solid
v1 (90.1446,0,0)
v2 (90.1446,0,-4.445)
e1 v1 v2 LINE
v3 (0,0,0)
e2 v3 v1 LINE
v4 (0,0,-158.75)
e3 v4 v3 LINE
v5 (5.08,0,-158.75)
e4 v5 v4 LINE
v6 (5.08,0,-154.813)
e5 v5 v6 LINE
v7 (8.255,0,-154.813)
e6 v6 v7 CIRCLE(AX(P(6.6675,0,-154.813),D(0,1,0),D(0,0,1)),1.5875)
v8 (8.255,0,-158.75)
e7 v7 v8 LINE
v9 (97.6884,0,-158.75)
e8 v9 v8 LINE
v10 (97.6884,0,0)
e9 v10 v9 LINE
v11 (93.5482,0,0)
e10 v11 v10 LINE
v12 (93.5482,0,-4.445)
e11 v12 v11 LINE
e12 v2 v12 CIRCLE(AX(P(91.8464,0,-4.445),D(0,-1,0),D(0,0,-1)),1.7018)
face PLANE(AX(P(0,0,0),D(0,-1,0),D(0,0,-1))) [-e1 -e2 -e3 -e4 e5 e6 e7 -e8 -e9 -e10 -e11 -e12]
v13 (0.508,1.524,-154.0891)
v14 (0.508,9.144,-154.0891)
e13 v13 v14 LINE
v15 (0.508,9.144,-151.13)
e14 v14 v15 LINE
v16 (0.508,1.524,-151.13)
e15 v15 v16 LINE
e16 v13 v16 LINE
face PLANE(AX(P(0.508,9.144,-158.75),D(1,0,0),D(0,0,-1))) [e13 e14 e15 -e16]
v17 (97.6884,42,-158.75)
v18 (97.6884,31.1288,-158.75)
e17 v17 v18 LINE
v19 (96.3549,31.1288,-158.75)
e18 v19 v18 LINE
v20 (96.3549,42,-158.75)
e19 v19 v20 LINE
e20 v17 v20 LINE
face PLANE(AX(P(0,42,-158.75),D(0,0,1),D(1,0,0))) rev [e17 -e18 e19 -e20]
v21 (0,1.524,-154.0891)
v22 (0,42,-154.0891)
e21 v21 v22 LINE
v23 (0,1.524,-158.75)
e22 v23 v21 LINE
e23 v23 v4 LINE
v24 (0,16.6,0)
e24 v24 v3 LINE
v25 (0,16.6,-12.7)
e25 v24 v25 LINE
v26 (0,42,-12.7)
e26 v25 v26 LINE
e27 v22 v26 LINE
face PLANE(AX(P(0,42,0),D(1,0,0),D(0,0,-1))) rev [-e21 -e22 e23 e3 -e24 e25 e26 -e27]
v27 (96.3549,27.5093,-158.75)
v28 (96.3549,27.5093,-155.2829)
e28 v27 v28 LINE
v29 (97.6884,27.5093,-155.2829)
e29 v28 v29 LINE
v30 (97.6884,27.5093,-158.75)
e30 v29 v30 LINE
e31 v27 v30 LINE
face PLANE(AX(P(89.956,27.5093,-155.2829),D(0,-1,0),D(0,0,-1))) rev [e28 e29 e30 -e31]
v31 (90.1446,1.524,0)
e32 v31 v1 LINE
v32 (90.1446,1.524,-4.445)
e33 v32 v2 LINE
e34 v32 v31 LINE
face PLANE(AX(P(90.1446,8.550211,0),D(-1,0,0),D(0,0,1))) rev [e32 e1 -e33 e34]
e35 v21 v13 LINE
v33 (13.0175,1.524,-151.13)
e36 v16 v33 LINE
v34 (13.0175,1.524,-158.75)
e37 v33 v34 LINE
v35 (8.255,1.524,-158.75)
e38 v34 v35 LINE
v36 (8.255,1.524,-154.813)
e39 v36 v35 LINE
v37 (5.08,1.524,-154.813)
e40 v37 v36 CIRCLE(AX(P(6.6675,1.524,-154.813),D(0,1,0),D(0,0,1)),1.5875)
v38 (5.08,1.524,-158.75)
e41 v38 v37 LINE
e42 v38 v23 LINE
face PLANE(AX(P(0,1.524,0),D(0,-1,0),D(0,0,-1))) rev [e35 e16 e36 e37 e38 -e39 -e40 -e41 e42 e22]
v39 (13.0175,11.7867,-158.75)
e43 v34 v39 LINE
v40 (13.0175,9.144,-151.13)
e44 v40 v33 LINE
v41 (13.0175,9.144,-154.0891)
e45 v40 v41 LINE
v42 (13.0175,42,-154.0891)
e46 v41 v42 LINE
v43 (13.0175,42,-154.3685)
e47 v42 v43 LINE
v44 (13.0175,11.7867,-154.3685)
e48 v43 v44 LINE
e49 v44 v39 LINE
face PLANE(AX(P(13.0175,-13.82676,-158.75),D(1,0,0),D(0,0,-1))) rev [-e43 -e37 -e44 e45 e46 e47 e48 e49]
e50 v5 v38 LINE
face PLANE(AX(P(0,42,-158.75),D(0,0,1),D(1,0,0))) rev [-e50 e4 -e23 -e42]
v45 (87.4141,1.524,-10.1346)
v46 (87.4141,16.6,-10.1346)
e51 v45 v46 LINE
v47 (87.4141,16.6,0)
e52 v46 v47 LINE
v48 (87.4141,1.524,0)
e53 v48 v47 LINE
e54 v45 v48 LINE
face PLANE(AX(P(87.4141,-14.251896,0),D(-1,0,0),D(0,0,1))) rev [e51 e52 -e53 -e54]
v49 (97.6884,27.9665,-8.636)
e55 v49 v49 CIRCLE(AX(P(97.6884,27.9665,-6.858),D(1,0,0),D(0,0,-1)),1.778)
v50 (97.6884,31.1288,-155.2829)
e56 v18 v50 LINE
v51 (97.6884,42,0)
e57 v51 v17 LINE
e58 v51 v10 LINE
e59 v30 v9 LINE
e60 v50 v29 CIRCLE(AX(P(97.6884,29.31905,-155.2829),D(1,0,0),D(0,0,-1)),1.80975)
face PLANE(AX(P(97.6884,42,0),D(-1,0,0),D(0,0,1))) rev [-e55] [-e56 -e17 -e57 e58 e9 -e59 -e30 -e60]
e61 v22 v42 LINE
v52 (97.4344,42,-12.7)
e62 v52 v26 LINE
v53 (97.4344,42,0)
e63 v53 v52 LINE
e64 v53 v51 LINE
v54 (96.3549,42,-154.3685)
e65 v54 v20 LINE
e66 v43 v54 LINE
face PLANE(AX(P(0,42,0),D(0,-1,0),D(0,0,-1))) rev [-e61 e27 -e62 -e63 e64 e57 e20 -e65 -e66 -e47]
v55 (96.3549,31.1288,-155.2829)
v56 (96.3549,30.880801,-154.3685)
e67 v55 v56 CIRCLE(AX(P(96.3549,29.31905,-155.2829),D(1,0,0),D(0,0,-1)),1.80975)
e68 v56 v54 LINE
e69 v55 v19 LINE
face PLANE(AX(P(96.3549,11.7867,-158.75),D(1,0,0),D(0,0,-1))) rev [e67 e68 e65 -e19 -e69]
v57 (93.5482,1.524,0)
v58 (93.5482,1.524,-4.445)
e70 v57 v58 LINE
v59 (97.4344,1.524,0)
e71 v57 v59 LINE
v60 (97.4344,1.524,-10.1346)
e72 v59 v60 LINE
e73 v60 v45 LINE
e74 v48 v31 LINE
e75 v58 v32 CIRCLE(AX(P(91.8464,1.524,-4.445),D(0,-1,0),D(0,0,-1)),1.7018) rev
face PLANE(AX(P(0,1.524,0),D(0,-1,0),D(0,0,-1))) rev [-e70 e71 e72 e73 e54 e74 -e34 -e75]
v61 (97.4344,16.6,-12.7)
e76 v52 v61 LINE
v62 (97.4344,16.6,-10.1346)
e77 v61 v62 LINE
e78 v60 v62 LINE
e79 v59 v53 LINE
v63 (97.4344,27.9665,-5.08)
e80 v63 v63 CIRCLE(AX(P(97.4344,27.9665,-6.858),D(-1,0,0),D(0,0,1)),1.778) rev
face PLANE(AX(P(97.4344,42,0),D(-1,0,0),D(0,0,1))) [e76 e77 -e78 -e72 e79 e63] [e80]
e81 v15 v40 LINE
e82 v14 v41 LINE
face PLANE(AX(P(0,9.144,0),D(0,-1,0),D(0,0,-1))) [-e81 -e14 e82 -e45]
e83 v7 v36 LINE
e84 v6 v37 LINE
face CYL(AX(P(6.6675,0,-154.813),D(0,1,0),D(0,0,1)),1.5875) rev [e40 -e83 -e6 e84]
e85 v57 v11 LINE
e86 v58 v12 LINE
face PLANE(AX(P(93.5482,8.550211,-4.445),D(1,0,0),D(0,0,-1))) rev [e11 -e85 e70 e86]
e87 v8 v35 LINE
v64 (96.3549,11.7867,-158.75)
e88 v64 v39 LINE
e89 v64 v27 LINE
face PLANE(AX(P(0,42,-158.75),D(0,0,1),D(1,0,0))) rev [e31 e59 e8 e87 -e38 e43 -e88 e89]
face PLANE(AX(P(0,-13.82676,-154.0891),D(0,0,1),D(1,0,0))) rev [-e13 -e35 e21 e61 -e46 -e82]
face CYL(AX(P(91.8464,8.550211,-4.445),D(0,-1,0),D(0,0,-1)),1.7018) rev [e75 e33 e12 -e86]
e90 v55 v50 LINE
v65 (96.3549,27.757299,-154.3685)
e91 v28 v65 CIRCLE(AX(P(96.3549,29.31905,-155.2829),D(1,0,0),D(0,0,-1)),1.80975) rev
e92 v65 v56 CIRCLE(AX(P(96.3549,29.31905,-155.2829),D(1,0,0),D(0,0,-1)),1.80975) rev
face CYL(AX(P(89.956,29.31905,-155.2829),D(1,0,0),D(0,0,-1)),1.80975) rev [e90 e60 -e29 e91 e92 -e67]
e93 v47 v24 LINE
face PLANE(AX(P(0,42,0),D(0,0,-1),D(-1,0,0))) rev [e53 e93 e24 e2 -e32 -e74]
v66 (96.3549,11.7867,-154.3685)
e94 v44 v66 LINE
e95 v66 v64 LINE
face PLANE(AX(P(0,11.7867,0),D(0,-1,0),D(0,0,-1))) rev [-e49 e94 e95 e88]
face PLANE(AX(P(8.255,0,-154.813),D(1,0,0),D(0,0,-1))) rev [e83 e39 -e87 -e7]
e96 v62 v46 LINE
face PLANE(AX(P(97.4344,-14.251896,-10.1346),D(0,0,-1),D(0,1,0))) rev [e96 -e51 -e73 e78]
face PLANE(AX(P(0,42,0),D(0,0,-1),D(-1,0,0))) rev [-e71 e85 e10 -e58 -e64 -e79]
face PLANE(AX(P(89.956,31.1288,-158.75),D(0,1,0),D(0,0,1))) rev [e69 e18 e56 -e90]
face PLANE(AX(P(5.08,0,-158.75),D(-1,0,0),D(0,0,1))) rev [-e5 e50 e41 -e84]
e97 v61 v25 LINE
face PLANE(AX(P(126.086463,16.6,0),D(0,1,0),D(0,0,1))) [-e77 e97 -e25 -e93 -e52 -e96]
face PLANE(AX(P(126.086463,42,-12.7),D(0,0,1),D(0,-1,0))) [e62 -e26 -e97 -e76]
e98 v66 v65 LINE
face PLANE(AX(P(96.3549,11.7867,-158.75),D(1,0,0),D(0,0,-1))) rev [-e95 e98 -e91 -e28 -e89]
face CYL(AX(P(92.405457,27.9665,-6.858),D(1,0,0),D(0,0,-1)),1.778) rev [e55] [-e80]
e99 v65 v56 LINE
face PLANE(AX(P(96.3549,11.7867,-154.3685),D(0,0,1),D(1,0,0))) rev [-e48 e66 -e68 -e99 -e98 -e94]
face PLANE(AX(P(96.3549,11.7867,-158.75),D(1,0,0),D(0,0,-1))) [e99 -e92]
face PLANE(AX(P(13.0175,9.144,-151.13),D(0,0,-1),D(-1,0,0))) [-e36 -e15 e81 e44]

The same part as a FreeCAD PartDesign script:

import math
import FreeCAD as App
import Part
import Sketcher

V = App.Vector
Q = App.Units.Quantity

doc = App.newDocument("Part")
params = doc.addObject("Spreadsheet::Sheet", "Params")
for row, (alias, value) in enumerate([
    ("sketch1_height", "6.25 in"),
    ("sketch1_width", "3.846 in"),
    ("pad1_length", "42 mm"),
    ("sketch2_width", "1 in"),
    ("sketch2_height", "0.5 in"),
    ("pocket1_length", "3.836 in"),
    ("sketch3_height", "0.399 in"),
    ("pocket2_length", "15.076 mm"),
    ("pocket3_length", "40.476 mm"),
    ("sketch5_height", "0.3 in"),
    ("pocket4_length", "0.3 in"),
    ("pocket5_length", "1.1895 in"),
    ("sketch7_radius", "0.0625 in"),
    ("sketch7_height", "0.155 in"),
    ("pocket7_length", "0.0525 in"),
    ("sketch9_diameter", "0.14 in"),
    ("pocket8_length", "0.01 in"),
    ("sketch10_radius", "0.067 in"),
    ("sketch10_height", "0.175 in"),
    ("pocket9_length", "0.06 in"),
], start=1):
    params.set(f"A{row}", alias)
    params.set(f"B{row}", "=" + value)
    params.setAlias(f"B{row}", alias)

body = doc.addObject("PartDesign::Body", "Body")

sketch1 = body.newObject("Sketcher::SketchObject", "Sketch")
sketch1.AttachmentSupport = (doc.getObject("XZ_Plane"), [""])
sketch1.MapMode = "FlatFace"
sketch1.addGeometry([
    Part.LineSegment(V(0, -159, 0), V(0, 0, 0)),
    Part.LineSegment(V(0, 0, 0), V(98, 0, 0)),
    Part.LineSegment(V(98, 0, 0), V(98, -159, 0)),
    Part.LineSegment(V(98, -159, 0), V(0, -159, 0)),
], False)
sketch1.addConstraint([
    Sketcher.Constraint("Coincident", 0, 2, 1, 1),
    Sketcher.Constraint("Coincident", 1, 2, 2, 1),
    Sketcher.Constraint("Coincident", 2, 2, 3, 1),
    Sketcher.Constraint("Coincident", 3, 2, 0, 1),
    Sketcher.Constraint("Vertical", 0),
    Sketcher.Constraint("Horizontal", 1),
    Sketcher.Constraint("Vertical", 2),
    Sketcher.Constraint("Horizontal", 3),
    Sketcher.Constraint("Coincident", 0, 2, -1, 1),
    Sketcher.Constraint("DistanceY", 0, 1, 0, 2, Q("6.25 in")),
    Sketcher.Constraint("DistanceX", 1, 1, 1, 2, Q("3.846 in")),
])
sketch1.setExpression("Constraints[9]", "Params.sketch1_height")
sketch1.setExpression("Constraints[10]", "Params.sketch1_width")
pad1 = body.newObject("PartDesign::Pad", "Pad")
pad1.Profile = sketch1
pad1.setExpression("Length", "Params.pad1_length")
pad1.Reversed = True

sketch2 = body.newObject("Sketcher::SketchObject", "Sketch001")
sketch2.AttachmentSupport = (doc.getObject("YZ_Plane"), [""])
sketch2.MapMode = "FlatFace"
sketch2.addGeometry([
    Part.LineSegment(V(42, 0, 0), V(17, 0, 0)),
    Part.LineSegment(V(17, 0, 0), V(17, -13, 0)),
    Part.LineSegment(V(17, -13, 0), V(42, -13, 0)),
    Part.LineSegment(V(42, -13, 0), V(42, 0, 0)),
], False)
sketch2.addConstraint([
    Sketcher.Constraint("Coincident", 0, 2, 1, 1),
    Sketcher.Constraint("Coincident", 1, 2, 2, 1),
    Sketcher.Constraint("Coincident", 2, 2, 3, 1),
    Sketcher.Constraint("Coincident", 3, 2, 0, 1),
    Sketcher.Constraint("Horizontal", 0),
    Sketcher.Constraint("Vertical", 1),
    Sketcher.Constraint("Horizontal", 2),
    Sketcher.Constraint("Vertical", 3),
    Sketcher.Constraint("PointOnObject", 0, 2, -1),
    Sketcher.Constraint("DistanceX", 0, 2, 0, 1, Q("1 in")),
    Sketcher.Constraint("DistanceY", 1, 2, 1, 1, Q("0.5 in")),
    Sketcher.Constraint("DistanceX", -1, 1, 0, 2, Q("16.6 mm")),
])
sketch2.setExpression("Constraints[9]", "Params.sketch2_width")
sketch2.setExpression("Constraints[10]", "Params.sketch2_height")
pocket1 = body.newObject("PartDesign::Pocket", "Pocket")
pocket1.Profile = sketch2
pocket1.setExpression("Length", "Params.pocket1_length")
pocket1.Reversed = True

sketch3 = body.newObject("Sketcher::SketchObject", "Sketch002")
sketch3.AttachmentSupport = (doc.getObject("XZ_Plane"), [""])
sketch3.MapMode = "FlatFace"
sketch3.AttachmentOffset = App.Placement(V(0, 0, -16.6), App.Rotation())
sketch3.addGeometry([
    Part.LineSegment(V(87, -10, 0), V(87, 0, 0)),
    Part.LineSegment(V(87, 0, 0), V(97, 0, 0)),
    Part.LineSegment(V(97, 0, 0), V(97, -10, 0)),
    Part.LineSegment(V(97, -10, 0), V(87, -10, 0)),
], False)
sketch3.addConstraint([
    Sketcher.Constraint("Coincident", 0, 2, 1, 1),
    Sketcher.Constraint("Coincident", 1, 2, 2, 1),
    Sketcher.Constraint("Coincident", 2, 2, 3, 1),
    Sketcher.Constraint("Coincident", 3, 2, 0, 1),
    Sketcher.Constraint("Vertical", 0),
    Sketcher.Constraint("Horizontal", 1),
    Sketcher.Constraint("Vertical", 2),
    Sketcher.Constraint("Horizontal", 3),
    Sketcher.Constraint("PointOnObject", 0, 2, -1),
    Sketcher.Constraint("DistanceY", 0, 1, 0, 2, Q("0.399 in")),
    Sketcher.Constraint("DistanceX", 1, 1, 1, 2, Q("0.3945 in")),
    Sketcher.Constraint("DistanceX", -1, 1, 1, 2, Q("3.836 in")),
])
sketch3.setExpression("Constraints[9]", "Params.sketch3_height")
pocket2 = body.newObject("PartDesign::Pocket", "Pocket001")
pocket2.Profile = sketch3
pocket2.setExpression("Length", "Params.pocket2_length")
pocket2.Reversed = True

sketch4 = body.newObject("Sketcher::SketchObject", "Sketch003")
sketch4.AttachmentSupport = (doc.getObject("XZ_Plane"), [""])
sketch4.MapMode = "FlatFace"
sketch4.AttachmentOffset = App.Placement(V(0, 0, -42), App.Rotation())
sketch4.addGeometry([
    Part.LineSegment(V(0, -158.8, 0), V(0, -154.1, 0)),
    Part.LineSegment(V(0, -154.1, 0), V(13, -154.1, 0)),
    Part.LineSegment(V(13, -154.1, 0), V(13, -158.8, 0)),
    Part.LineSegment(V(13, -158.8, 0), V(0, -158.8, 0)),
], False)
sketch4.addConstraint([
    Sketcher.Constraint("Coincident", 0, 2, 1, 1),
    Sketcher.Constraint("Coincident", 1, 2, 2, 1),
    Sketcher.Constraint("Coincident", 2, 2, 3, 1),
    Sketcher.Constraint("Coincident", 3, 2, 0, 1),
    Sketcher.Constraint("Vertical", 0),
    Sketcher.Constraint("Horizontal", 1),
    Sketcher.Constraint("Vertical", 2),
    Sketcher.Constraint("Horizontal", 3),
    Sketcher.Constraint("PointOnObject", 0, 2, -2),
    Sketcher.Constraint("DistanceY", 2, 2, -1, 1, Q("6.25 in")),
    Sketcher.Constraint("DistanceX", 1, 1, 1, 2, Q("0.5125 in")),
    Sketcher.Constraint("DistanceY", 0, 1, 0, 2, Q("0.1835 in")),
])
pocket3 = body.newObject("PartDesign::Pocket", "Pocket002")
pocket3.Profile = sketch4
pocket3.setExpression("Length", "Params.pocket3_length")
pocket3.Reversed = True

sketch5 = body.newObject("Sketcher::SketchObject", "Sketch004")
sketch5.AttachmentSupport = (doc.getObject("XZ_Plane"), [""])
sketch5.MapMode = "FlatFace"
sketch5.AttachmentOffset = App.Placement(V(0, 0, -0.06 * 25.4), App.Rotation())
sketch5.addGeometry([
    Part.LineSegment(V(1, -159, 0), V(1, -151, 0)),
    Part.LineSegment(V(1, -151, 0), V(13, -151, 0)),
    Part.LineSegment(V(13, -151, 0), V(13, -159, 0)),
    Part.LineSegment(V(13, -159, 0), V(1, -159, 0)),
], False)
sketch5.addConstraint([
    Sketcher.Constraint("Coincident", 0, 2, 1, 1),
    Sketcher.Constraint("Coincident", 1, 2, 2, 1),
    Sketcher.Constraint("Coincident", 2, 2, 3, 1),
    Sketcher.Constraint("Coincident", 3, 2, 0, 1),
    Sketcher.Constraint("Vertical", 0),
    Sketcher.Constraint("Horizontal", 1),
    Sketcher.Constraint("Vertical", 2),
    Sketcher.Constraint("Horizontal", 3),
    Sketcher.Constraint("DistanceY", 0, 1, 0, 2, Q("0.3 in")),
    Sketcher.Constraint("DistanceX", -1, 1, 0, 2, Q("0.02 in")),
    Sketcher.Constraint("DistanceY", 0, 2, -1, 1, Q("5.95 in")),
    Sketcher.Constraint("DistanceX", 1, 1, 1, 2, Q("0.4925 in")),
])
sketch5.setExpression("Constraints[8]", "Params.sketch5_height")
pocket4 = body.newObject("PartDesign::Pocket", "Pocket003")
pocket4.Profile = sketch5
pocket4.setExpression("Length", "Params.pocket4_length")

sketch6 = body.newObject("Sketcher::SketchObject", "Sketch005")
sketch6.AttachmentSupport = (doc.getObject("XZ_Plane"), [""])
sketch6.MapMode = "FlatFace"
sketch6.AttachmentOffset = App.Placement(V(0, 0, -42), App.Rotation())
sketch6.addGeometry([
    Part.LineSegment(V(0, -158.8, 0), V(0, -154.4, 0)),
    Part.LineSegment(V(0, -154.4, 0), V(96.4, -154.4, 0)),
    Part.LineSegment(V(96.4, -154.4, 0), V(96.4, -158.8, 0)),
    Part.LineSegment(V(96.4, -158.8, 0), V(0, -158.8, 0)),
], False)
sketch6.addConstraint([
    Sketcher.Constraint("Coincident", 0, 2, 1, 1),
    Sketcher.Constraint("Coincident", 1, 2, 2, 1),
    Sketcher.Constraint("Coincident", 2, 2, 3, 1),
    Sketcher.Constraint("Coincident", 3, 2, 0, 1),
    Sketcher.Constraint("Vertical", 0),
    Sketcher.Constraint("Horizontal", 1),
    Sketcher.Constraint("Vertical", 2),
    Sketcher.Constraint("Horizontal", 3),
    Sketcher.Constraint("PointOnObject", 0, 2, -2),
    Sketcher.Constraint("DistanceY", 2, 2, -1, 1, Q("6.25 in")),
    Sketcher.Constraint("DistanceX", 1, 1, 1, 2, Q("3.7935 in")),
    Sketcher.Constraint("DistanceY", 0, 1, 0, 2, Q("0.1725 in")),
])
pocket5 = body.newObject("PartDesign::Pocket", "Pocket004")
pocket5.Profile = sketch6
pocket5.setExpression("Length", "Params.pocket5_length")
pocket5.Reversed = True

sketch7 = body.newObject("Sketcher::SketchObject", "Sketch006")
sketch7.AttachmentSupport = (doc.getObject("XZ_Plane"), [""])
sketch7.MapMode = "FlatFace"
sketch7.AttachmentOffset = App.Placement(V(0, 0, -0.06 * 25.4), App.Rotation())
sketch7.addGeometry([
    Part.LineSegment(V(5.1, -158.8, 0), V(5.1, -154.8, 0)),
    Part.ArcOfCircle(Part.Circle(V(6.7, -154.8, 0), V(0, 0, 1), 1.6), math.radians(0), math.radians(180)),
    Part.LineSegment(V(8.3, -154.8, 0), V(8.3, -158.8, 0)),
    Part.LineSegment(V(8.3, -158.8, 0), V(5.1, -158.8, 0)),
], False)
sketch7.addConstraint([
    Sketcher.Constraint("Tangent", 0, 2, 1, 2),
    Sketcher.Constraint("Tangent", 1, 1, 2, 1),
    Sketcher.Constraint("Coincident", 2, 2, 3, 1),
    Sketcher.Constraint("Coincident", 3, 2, 0, 1),
    Sketcher.Constraint("Vertical", 0),
    Sketcher.Constraint("Vertical", 2),
    Sketcher.Constraint("Horizontal", 3),
    Sketcher.Constraint("Radius", 1, Q("0.0625 in")),
    Sketcher.Constraint("DistanceX", -1, 1, 0, 2, Q("0.2 in")),
    Sketcher.Constraint("DistanceY", 0, 1, 0, 2, Q("0.155 in")),
    Sketcher.Constraint("DistanceY", 2, 2, -1, 1, Q("6.25 in")),
])
sketch7.setExpression("Constraints[7]", "Params.sketch7_radius")
sketch7.setExpression("Constraints[9]", "Params.sketch7_height")
pocket6 = body.newObject("PartDesign::Pocket", "Pocket005")
pocket6.Profile = sketch7
pocket6.Type = "ThroughAll"
pocket6.Reversed = True

sketch8 = body.newObject("Sketcher::SketchObject", "Sketch007")
sketch8.AttachmentSupport = (doc.getObject("YZ_Plane"), [""])
sketch8.MapMode = "FlatFace"
sketch8.AttachmentOffset = App.Placement(V(0, 0, 3.846 * 25.4), App.Rotation())
sketch8.addGeometry([
    Part.LineSegment(V(31.1, -158.8, 0), V(31.1, -155.3, 0)),
    Part.ArcOfCircle(Part.Circle(V(29.3, -155.3, 0), V(0, 0, 1), 1.8), math.radians(0), math.radians(180)),
    Part.LineSegment(V(27.5, -155.3, 0), V(27.5, -158.8, 0)),
    Part.LineSegment(V(27.5, -158.8, 0), V(31.1, -158.8, 0)),
], False)
sketch8.addConstraint([
    Sketcher.Constraint("Tangent", 0, 2, 1, 1),
    Sketcher.Constraint("Tangent", 1, 2, 2, 1),
    Sketcher.Constraint("Coincident", 2, 2, 3, 1),
    Sketcher.Constraint("Coincident", 3, 2, 0, 1),
    Sketcher.Constraint("Vertical", 0),
    Sketcher.Constraint("Vertical", 2),
    Sketcher.Constraint("Horizontal", 3),
    Sketcher.Constraint("DistanceY", 2, 2, -1, 1, Q("6.25 in")),
    Sketcher.Constraint("DistanceX", 3, 1, 3, 2, Q("0.1425 in")),
    Sketcher.Constraint("DistanceY", 0, 1, 0, 2, Q("0.1365 in")),
    Sketcher.Constraint("DistanceX", -1, 1, 0, 2, Q("31.1288 mm")),
])
pocket7 = body.newObject("PartDesign::Pocket", "Pocket006")
pocket7.Profile = sketch8
pocket7.setExpression("Length", "Params.pocket7_length")

sketch9 = body.newObject("Sketcher::SketchObject", "Sketch008")
sketch9.AttachmentSupport = (doc.getObject("YZ_Plane"), [""])
sketch9.MapMode = "FlatFace"
sketch9.AttachmentOffset = App.Placement(V(0, 0, 3.846 * 25.4), App.Rotation())
sketch9.addGeometry(Part.Circle(V(28, -6.9, 0), V(0, 0, 1), 1.8), False)
sketch9.addConstraint([
    Sketcher.Constraint("Diameter", 0, Q("0.14 in")),
    Sketcher.Constraint("DistanceY", 0, 3, -1, 1, Q("0.27 in")),
    Sketcher.Constraint("DistanceX", -1, 1, 0, 3, Q("27.9665 mm")),
])
sketch9.setExpression("Constraints[0]", "Params.sketch9_diameter")
pocket8 = body.newObject("PartDesign::Pocket", "Pocket007")
pocket8.Profile = sketch9
pocket8.setExpression("Length", "Params.pocket8_length")

sketch10 = body.newObject("Sketcher::SketchObject", "Sketch009")
sketch10.AttachmentSupport = (doc.getObject("XZ_Plane"), [""])
sketch10.MapMode = "FlatFace"
sketch10.addGeometry([
    Part.LineSegment(V(93.5, 0, 0), V(90.1, 0, 0)),
    Part.LineSegment(V(90.1, 0, 0), V(90.1, -4.4, 0)),
    Part.ArcOfCircle(Part.Circle(V(91.8, -4.4, 0), V(0, 0, 1), 1.7), math.radians(180), math.radians(360)),
    Part.LineSegment(V(93.5, -4.4, 0), V(93.5, 0, 0)),
], False)
sketch10.addConstraint([
    Sketcher.Constraint("Coincident", 0, 2, 1, 1),
    Sketcher.Constraint("Tangent", 1, 2, 2, 1),
    Sketcher.Constraint("Tangent", 2, 2, 3, 1),
    Sketcher.Constraint("Coincident", 3, 2, 0, 1),
    Sketcher.Constraint("Horizontal", 0),
    Sketcher.Constraint("Vertical", 1),
    Sketcher.Constraint("Vertical", 3),
    Sketcher.Constraint("PointOnObject", 0, 2, -1),
    Sketcher.Constraint("Radius", 2, Q("0.067 in")),
    Sketcher.Constraint("DistanceY", 1, 2, 1, 1, Q("0.175 in")),
    Sketcher.Constraint("DistanceX", -1, 1, 2, 3, Q("3.616 in")),
])
sketch10.setExpression("Constraints[8]", "Params.sketch10_radius")
sketch10.setExpression("Constraints[9]", "Params.sketch10_height")
pocket9 = body.newObject("PartDesign::Pocket", "Pocket008")
pocket9.Profile = sketch10
pocket9.setExpression("Length", "Params.pocket9_length")

doc.recompute()
